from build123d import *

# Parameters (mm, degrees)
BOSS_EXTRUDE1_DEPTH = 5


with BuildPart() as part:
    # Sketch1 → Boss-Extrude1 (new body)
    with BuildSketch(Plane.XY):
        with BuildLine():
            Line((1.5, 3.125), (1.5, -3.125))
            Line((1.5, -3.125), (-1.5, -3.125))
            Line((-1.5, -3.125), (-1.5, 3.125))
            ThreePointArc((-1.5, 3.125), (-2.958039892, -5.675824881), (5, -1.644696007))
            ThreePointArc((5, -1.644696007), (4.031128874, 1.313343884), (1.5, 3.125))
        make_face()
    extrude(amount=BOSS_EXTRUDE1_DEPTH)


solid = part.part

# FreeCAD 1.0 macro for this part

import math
import FreeCAD as App
import Part
import Sketcher
from FreeCAD import Vector
Q = App.Units.Quantity

doc = App.newDocument("Part")
body = doc.addObject("PartDesign::Body", "Body")

# Sketch on XY plane
sketch1 = body.newObject("Sketcher::SketchObject", "Sketch")
sketch1.AttachmentSupport = (doc.getObject("XY_Plane"), [""])
sketch1.MapMode = "FlatFace"
sketch1.addGeometry([
    Part.LineSegment(Vector(1.5, 3.125, 0), Vector(1.5, -3.125, 0)),  # 0
    Part.LineSegment(Vector(1.5, -3.125, 0), Vector(-1.5, -3.125, 0)),  # 1
    Part.LineSegment(Vector(-1.5, -3.125, 0), Vector(-1.5, 3.125, 0)),  # 2
    Part.ArcOfCircle(Part.Circle(Vector(0, -1.644696, 0), Vector(0, 0, 1), 5), math.radians(107.457603), math.radians(360)),  # 3
    Part.ArcOfCircle(Part.Circle(Vector(0, -1.644696, 0), Vector(0, 0, 1), 5), math.radians(0), math.radians(72.542397)),  # 4
], False)
sketch1.addConstraint([
    Sketcher.Constraint("Coincident", 0, 2, 1, 1),
    Sketcher.Constraint("Coincident", 1, 2, 2, 1),
    Sketcher.Constraint("Coincident", 2, 2, 3, 1),
    Sketcher.Constraint("Tangent", 3, 2, 4, 1),
    Sketcher.Constraint("Coincident", 4, 2, 0, 1),
    Sketcher.Constraint("Vertical", 0),
    Sketcher.Constraint("Horizontal", 1),
    Sketcher.Constraint("Vertical", 2),
    Sketcher.Constraint("Equal", 3, 4),
    Sketcher.Constraint("Symmetric", 0, 2, 2, 2, -1, 1),
    Sketcher.Constraint("PointOnObject", 3, 3, -2),
    Sketcher.Constraint("Horizontal", 4, 3, 3, 2),
    Sketcher.Constraint("Radius", 3, Q("5 mm")),
    Sketcher.Constraint("DistanceX", 1, 2, 1, 1, Q("3 mm")),
    Sketcher.Constraint("DistanceY", 0, 2, 0, 1, Q("6.25 mm")),
])
pad1 = body.newObject("PartDesign::Pad", "Pad")
pad1.Profile = sketch1
pad1.Length = 5

doc.recompute()
